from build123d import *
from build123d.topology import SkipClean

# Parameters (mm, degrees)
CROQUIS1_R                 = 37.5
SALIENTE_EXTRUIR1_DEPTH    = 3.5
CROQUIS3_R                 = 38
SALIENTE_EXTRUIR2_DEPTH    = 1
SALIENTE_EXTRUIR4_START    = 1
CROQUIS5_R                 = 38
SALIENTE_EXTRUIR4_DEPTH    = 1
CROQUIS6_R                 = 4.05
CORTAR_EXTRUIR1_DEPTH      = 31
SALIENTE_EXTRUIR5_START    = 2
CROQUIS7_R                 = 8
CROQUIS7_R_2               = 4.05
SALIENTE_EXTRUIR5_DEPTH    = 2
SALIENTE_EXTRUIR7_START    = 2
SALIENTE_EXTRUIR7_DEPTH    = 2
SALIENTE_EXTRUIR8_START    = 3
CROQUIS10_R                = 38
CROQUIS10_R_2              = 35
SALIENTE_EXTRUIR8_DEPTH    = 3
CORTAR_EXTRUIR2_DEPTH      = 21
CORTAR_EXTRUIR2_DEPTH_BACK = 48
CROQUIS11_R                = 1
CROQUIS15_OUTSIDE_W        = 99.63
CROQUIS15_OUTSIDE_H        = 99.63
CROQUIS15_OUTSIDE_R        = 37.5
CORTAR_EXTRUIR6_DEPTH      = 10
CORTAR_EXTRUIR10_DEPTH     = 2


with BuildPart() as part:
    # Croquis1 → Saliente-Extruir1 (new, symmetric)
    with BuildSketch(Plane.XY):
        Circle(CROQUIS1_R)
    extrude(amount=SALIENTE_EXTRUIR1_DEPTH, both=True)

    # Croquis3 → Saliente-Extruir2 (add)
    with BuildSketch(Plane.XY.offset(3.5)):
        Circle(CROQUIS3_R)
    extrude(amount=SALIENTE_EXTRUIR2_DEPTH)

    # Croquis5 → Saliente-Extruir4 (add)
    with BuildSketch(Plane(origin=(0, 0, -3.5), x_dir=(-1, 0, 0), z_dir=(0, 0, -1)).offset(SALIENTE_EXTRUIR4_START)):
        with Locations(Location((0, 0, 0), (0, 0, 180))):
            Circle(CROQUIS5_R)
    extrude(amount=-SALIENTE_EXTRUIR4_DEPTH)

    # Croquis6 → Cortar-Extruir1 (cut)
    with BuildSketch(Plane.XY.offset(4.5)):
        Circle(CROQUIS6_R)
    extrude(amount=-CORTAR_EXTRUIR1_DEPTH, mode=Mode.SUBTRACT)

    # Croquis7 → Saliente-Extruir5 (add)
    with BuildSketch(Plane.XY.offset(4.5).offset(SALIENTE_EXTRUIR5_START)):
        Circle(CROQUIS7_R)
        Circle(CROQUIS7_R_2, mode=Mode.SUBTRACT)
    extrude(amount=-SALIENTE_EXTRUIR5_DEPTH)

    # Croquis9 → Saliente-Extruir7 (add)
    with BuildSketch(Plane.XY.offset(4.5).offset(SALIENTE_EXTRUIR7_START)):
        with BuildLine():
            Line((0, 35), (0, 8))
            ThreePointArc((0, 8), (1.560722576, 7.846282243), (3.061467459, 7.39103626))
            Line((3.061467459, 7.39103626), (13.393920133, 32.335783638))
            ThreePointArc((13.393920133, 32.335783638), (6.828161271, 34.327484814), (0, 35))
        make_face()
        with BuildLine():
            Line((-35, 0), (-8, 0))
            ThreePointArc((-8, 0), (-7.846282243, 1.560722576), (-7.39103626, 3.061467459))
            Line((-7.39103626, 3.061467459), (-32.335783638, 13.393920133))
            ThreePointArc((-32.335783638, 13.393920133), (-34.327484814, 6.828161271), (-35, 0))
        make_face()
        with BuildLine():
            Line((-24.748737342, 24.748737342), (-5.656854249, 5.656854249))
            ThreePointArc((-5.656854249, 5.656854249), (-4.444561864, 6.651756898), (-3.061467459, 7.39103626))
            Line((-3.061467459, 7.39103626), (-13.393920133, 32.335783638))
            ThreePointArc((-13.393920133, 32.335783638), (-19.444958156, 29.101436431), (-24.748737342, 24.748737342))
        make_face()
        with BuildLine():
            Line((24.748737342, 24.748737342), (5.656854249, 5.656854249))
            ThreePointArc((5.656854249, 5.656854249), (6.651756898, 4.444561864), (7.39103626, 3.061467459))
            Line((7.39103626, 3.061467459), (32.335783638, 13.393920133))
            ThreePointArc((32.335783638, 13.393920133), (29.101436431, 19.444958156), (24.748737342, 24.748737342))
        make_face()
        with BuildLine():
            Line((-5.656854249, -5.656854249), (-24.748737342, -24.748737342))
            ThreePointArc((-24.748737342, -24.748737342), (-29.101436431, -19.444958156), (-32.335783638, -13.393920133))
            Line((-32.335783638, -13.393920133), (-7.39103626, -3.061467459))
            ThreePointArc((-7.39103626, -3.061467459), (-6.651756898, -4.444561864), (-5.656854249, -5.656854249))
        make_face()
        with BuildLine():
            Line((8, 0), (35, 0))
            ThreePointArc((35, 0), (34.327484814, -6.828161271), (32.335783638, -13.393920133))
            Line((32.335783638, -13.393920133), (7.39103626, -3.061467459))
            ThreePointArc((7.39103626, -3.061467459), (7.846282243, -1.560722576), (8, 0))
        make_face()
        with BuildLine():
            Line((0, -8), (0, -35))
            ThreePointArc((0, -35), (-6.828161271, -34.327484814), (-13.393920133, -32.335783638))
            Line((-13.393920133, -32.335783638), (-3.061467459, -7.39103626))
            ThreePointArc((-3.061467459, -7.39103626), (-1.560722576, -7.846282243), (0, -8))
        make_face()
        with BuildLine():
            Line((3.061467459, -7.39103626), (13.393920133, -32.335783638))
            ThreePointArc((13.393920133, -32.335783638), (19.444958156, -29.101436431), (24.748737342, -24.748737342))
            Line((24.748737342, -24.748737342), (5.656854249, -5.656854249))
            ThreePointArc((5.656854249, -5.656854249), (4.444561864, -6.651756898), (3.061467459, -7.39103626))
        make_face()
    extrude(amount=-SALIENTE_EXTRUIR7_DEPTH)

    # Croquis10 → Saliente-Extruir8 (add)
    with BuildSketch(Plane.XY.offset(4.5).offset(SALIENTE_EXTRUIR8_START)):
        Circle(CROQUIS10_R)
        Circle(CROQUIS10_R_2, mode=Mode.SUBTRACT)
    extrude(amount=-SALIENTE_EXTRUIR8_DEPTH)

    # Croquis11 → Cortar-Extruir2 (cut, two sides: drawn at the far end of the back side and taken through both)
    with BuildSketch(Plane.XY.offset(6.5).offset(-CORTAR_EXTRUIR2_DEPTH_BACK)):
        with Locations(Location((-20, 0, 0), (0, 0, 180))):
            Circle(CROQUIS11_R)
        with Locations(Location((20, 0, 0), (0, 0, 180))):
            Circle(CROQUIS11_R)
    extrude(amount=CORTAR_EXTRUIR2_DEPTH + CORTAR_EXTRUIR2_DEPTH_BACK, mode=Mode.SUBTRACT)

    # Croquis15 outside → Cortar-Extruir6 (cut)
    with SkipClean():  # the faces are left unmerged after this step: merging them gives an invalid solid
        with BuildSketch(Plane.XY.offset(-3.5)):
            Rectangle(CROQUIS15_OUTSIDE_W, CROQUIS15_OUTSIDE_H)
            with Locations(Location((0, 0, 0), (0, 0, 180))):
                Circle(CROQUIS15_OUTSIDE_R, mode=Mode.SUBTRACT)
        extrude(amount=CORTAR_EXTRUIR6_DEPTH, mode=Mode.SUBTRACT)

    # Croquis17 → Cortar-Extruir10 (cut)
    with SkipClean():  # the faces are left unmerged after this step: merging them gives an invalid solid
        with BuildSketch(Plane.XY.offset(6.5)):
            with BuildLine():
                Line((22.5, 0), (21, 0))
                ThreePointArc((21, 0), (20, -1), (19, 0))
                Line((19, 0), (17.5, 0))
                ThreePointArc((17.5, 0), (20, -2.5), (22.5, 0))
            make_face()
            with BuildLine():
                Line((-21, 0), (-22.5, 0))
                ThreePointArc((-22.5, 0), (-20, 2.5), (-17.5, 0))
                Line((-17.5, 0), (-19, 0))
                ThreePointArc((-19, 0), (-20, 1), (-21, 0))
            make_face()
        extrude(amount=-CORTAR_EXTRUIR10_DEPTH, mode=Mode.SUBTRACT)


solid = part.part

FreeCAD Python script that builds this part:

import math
import FreeCAD as App
import Part
import Sketcher
from FreeCAD import Vector
Q = App.Units.Quantity


def add_polygon(sketch, points):
    """Adds a closed chain of lines whose ends are joined by coincident constraints."""
    first, n = sketch.GeometryCount, len(points)
    for a, b in zip(points, points[1:] + points[:1]):
        sketch.addGeometry(Part.LineSegment(App.Vector(*a, 0), App.Vector(*b, 0)), False)
    for i in range(n):
        sketch.addConstraint(Sketcher.Constraint("Coincident", first + i, 2, first + (i + 1) % n, 1))

doc = App.newDocument("Part")
body = doc.addObject("PartDesign::Body", "Body")

# Sketch on XY plane
sketch1 = doc.addObject("Sketcher::SketchObject", "Sketch")
body.addObject(sketch1)
sketch1.AttachmentSupport = (doc.XY_Plane, [""])
sketch1.MapMode = "FlatFace"
sketch1.addGeometry(Part.Circle(Vector(0, 0, 0), Vector(0, 0, 1), 37.5), False)
sketch1.addConstraint([
    Sketcher.Constraint("Coincident", 0, 3, -1, 1),
    Sketcher.Constraint("Diameter", 0, 75.0),
])
pad1 = doc.addObject("PartDesign::Pad", "Pad")
body.addObject(pad1)
pad1.Profile = sketch1
pad1.Length = 7
pad1.Midplane = True

# Sketch on XY plane
sketch2 = doc.addObject("Sketcher::SketchObject", "Sketch001")
body.addObject(sketch2)
sketch2.AttachmentSupport = (doc.XY_Plane, [""])
sketch2.MapMode = "FlatFace"
sketch2.AttachmentOffset = App.Placement(Vector(0, 0, 3.5), App.Rotation())
sketch2.addGeometry(Part.Circle(Vector(0, 0, 0), Vector(0, 0, 1), 38), False)
sketch2.addConstraint([
    Sketcher.Constraint("Coincident", 0, 3, -1, 1),
    Sketcher.Constraint("Diameter", 0, 76.0),
])
pad2 = doc.addObject("PartDesign::Pad", "Pad001")
body.addObject(pad2)
pad2.Profile = sketch2
pad2.Length = 1

# Sketch on XY plane
sketch3 = doc.addObject("Sketcher::SketchObject", "Sketch002")
body.addObject(sketch3)
sketch3.AttachmentSupport = (doc.XY_Plane, [""])
sketch3.MapMode = "FlatFace"
sketch3.AttachmentOffset = App.Placement(Vector(0, 0, -4.5), App.Rotation())
sketch3.addGeometry(Part.Circle(Vector(0, 0, 0), Vector(0, 0, 1), 38), False)
sketch3.addConstraint([
    Sketcher.Constraint("Coincident", 0, 3, -1, 1),
    Sketcher.Constraint("Diameter", 0, 76.0),
])
pad3 = doc.addObject("PartDesign::Pad", "Pad002")
body.addObject(pad3)
pad3.Profile = sketch3
pad3.Length = 1

# Sketch on XY plane
sketch4 = doc.addObject("Sketcher::SketchObject", "Sketch003")
body.addObject(sketch4)
sketch4.AttachmentSupport = (doc.XY_Plane, [""])
sketch4.MapMode = "FlatFace"
sketch4.AttachmentOffset = App.Placement(Vector(0, 0, 4.5), App.Rotation())
sketch4.addGeometry(Part.Circle(Vector(0, 0, 0), Vector(0, 0, 1), 4.05), False)
sketch4.addConstraint([
    Sketcher.Constraint("Coincident", 0, 3, -1, 1),
    Sketcher.Constraint("Diameter", 0, 8.1),
])
pocket1 = doc.addObject("PartDesign::Pocket", "Pocket")
body.addObject(pocket1)
pocket1.Profile = sketch4
pocket1.Length = 31

# Sketch on XY plane
sketch5 = doc.addObject("Sketcher::SketchObject", "Sketch004")
body.addObject(sketch5)
sketch5.AttachmentSupport = (doc.XY_Plane, [""])
sketch5.MapMode = "FlatFace"
sketch5.AttachmentOffset = App.Placement(Vector(0, 0, 6.5), App.Rotation())
sketch5.addGeometry([
    Part.Circle(Vector(0, 0, 0), Vector(0, 0, 1), 8),
    Part.Circle(Vector(0, 0, 0), Vector(0, 0, 1), 4.05),
], False)
sketch5.addConstraint([
    Sketcher.Constraint("Coincident", 0, 3, -1, 1),
    Sketcher.Constraint("Coincident", 1, 3, -1, 1),
    Sketcher.Constraint("Diameter", 0, 16.0),
    Sketcher.Constraint("Diameter", 1, 8.1),
])
pad4 = doc.addObject("PartDesign::Pad", "Pad003")
body.addObject(pad4)
pad4.Profile = sketch5
pad4.Length = 2
pad4.Reversed = True

# Sketch on XY plane
sketch6 = doc.addObject("Sketcher::SketchObject", "Sketch005")
body.addObject(sketch6)
sketch6.AttachmentSupport = (doc.XY_Plane, [""])
sketch6.MapMode = "FlatFace"
sketch6.AttachmentOffset = App.Placement(Vector(0, 0, 6.5), App.Rotation())
sketch6.addGeometry([
    Part.LineSegment(Vector(0, 35, 0), Vector(0, 8, 0)),  # 0
    Part.ArcOfCircle(Part.Circle(Vector(0, 0, 0), Vector(0, 0, 1), 8), math.radians(67.5), math.radians(90)),  # 1
    Part.LineSegment(Vector(3.061467, 7.391036, 0), Vector(13.39392, 32.335784, 0)),  # 2
    Part.ArcOfCircle(Part.Circle(Vector(0, 0, 0), Vector(0, 0, 1), 35), math.radians(67.5), math.radians(90)),  # 3
    Part.LineSegment(Vector(-35, 0, 0), Vector(-8, 0, 0)),  # 4
    Part.ArcOfCircle(Part.Circle(Vector(0, 0, 0), Vector(0, 0, 1), 8), math.radians(157.5), math.radians(180)),  # 5
    Part.LineSegment(Vector(-7.391036, 3.061467, 0), Vector(-32.335784, 13.39392, 0)),  # 6
    Part.ArcOfCircle(Part.Circle(Vector(0, 0, 0), Vector(0, 0, 1), 35), math.radians(157.5), math.radians(180)),  # 7
    Part.LineSegment(Vector(-24.748737, 24.748737, 0), Vector(-5.656854, 5.656854, 0)),  # 8
    Part.ArcOfCircle(Part.Circle(Vector(0, 0, 0), Vector(0, 0, 1), 8), math.radians(112.5), math.radians(135)),  # 9
    Part.LineSegment(Vector(-3.061467, 7.391036, 0), Vector(-13.39392, 32.335784, 0)),  # 10
    Part.ArcOfCircle(Part.Circle(Vector(0, 0, 0), Vector(0, 0, 1), 35), math.radians(112.5), math.radians(135)),  # 11
    Part.LineSegment(Vector(24.748737, 24.748737, 0), Vector(5.656854, 5.656854, 0)),  # 12
    Part.ArcOfCircle(Part.Circle(Vector(0, 0, 0), Vector(0, 0, 1), 8), math.radians(22.5), math.radians(45)),  # 13
    Part.LineSegment(Vector(7.391036, 3.061467, 0), Vector(32.335784, 13.39392, 0)),  # 14
    Part.ArcOfCircle(Part.Circle(Vector(0, 0, 0), Vector(0, 0, 1), 35), math.radians(22.5), math.radians(45)),  # 15
    Part.LineSegment(Vector(-24.748737, -24.748737, 0), Vector(-5.656854, -5.656854, 0)),  # 16
    Part.ArcOfCircle(Part.Circle(Vector(0, 0, 0), Vector(0, 0, 1), 8), math.radians(-157.5), math.radians(-135)),  # 17
    Part.LineSegment(Vector(-7.391036, -3.061467, 0), Vector(-32.335784, -13.39392, 0)),  # 18
    Part.ArcOfCircle(Part.Circle(Vector(0, 0, 0), Vector(0, 0, 1), 35), math.radians(-157.5), math.radians(-135)),  # 19
    Part.LineSegment(Vector(35, 0, 0), Vector(8, 0, 0)),  # 20
    Part.ArcOfCircle(Part.Circle(Vector(0, 0, 0), Vector(0, 0, 1), 8), math.radians(-22.5), math.radians(0)),  # 21
    Part.LineSegment(Vector(7.391036, -3.061467, 0), Vector(32.335784, -13.39392, 0)),  # 22
    Part.ArcOfCircle(Part.Circle(Vector(0, 0, 0), Vector(0, 0, 1), 35), math.radians(-22.5), math.radians(0)),  # 23
    Part.LineSegment(Vector(0, -35, 0), Vector(0, -8, 0)),  # 24
    Part.ArcOfCircle(Part.Circle(Vector(0, 0, 0), Vector(0, 0, 1), 8), math.radians(-112.5), math.radians(-90)),  # 25
    Part.LineSegment(Vector(-3.061467, -7.391036, 0), Vector(-13.39392, -32.335784, 0)),  # 26
    Part.ArcOfCircle(Part.Circle(Vector(0, 0, 0), Vector(0, 0, 1), 35), math.radians(-112.5), math.radians(-90)),  # 27
    Part.LineSegment(Vector(3.061467, -7.391036, 0), Vector(13.39392, -32.335784, 0)),  # 28
    Part.ArcOfCircle(Part.Circle(Vector(0, 0, 0), Vector(0, 0, 1), 35), math.radians(-67.5), math.radians(-45)),  # 29
    Part.LineSegment(Vector(24.748737, -24.748737, 0), Vector(5.656854, -5.656854, 0)),  # 30
    Part.ArcOfCircle(Part.Circle(Vector(0, 0, 0), Vector(0, 0, 1), 8), math.radians(-67.5), math.radians(-45)),  # 31
], False)
sketch6.addConstraint([
    Sketcher.Constraint("Coincident", 0, 2, 1, 2),
    Sketcher.Constraint("Coincident", 1, 1, 2, 1),
    Sketcher.Constraint("Coincident", 2, 2, 3, 1),
    Sketcher.Constraint("Coincident", 3, 2, 0, 1),
    Sketcher.Constraint("Coincident", 4, 2, 5, 2),
    Sketcher.Constraint("Coincident", 5, 1, 6, 1),
    Sketcher.Constraint("Coincident", 6, 2, 7, 1),
    Sketcher.Constraint("Coincident", 7, 2, 4, 1),
    Sketcher.Constraint("Coincident", 8, 2, 9, 2),
    Sketcher.Constraint("Coincident", 9, 1, 10, 1),
    Sketcher.Constraint("Coincident", 10, 2, 11, 1),
    Sketcher.Constraint("Coincident", 11, 2, 8, 1),
    Sketcher.Constraint("Coincident", 12, 2, 13, 2),
    Sketcher.Constraint("Coincident", 13, 1, 14, 1),
    Sketcher.Constraint("Coincident", 14, 2, 15, 1),
    Sketcher.Constraint("Coincident", 15, 2, 12, 1),
    Sketcher.Constraint("Coincident", 16, 2, 17, 2),
    Sketcher.Constraint("Coincident", 17, 1, 18, 1),
    Sketcher.Constraint("Coincident", 18, 2, 19, 1),
    Sketcher.Constraint("Coincident", 19, 2, 16, 1),
    Sketcher.Constraint("Coincident", 20, 2, 21, 2),
    Sketcher.Constraint("Coincident", 21, 1, 22, 1),
    Sketcher.Constraint("Coincident", 22, 2, 23, 1),
    Sketcher.Constraint("Coincident", 23, 2, 20, 1),
    Sketcher.Constraint("Coincident", 24, 2, 25, 2),
    Sketcher.Constraint("Coincident", 25, 1, 26, 1),
    Sketcher.Constraint("Coincident", 26, 2, 27, 1),
    Sketcher.Constraint("Coincident", 27, 2, 24, 1),
    Sketcher.Constraint("Coincident", 28, 2, 29, 1),
    Sketcher.Constraint("Coincident", 29, 2, 30, 1),
    Sketcher.Constraint("Coincident", 30, 2, 31, 2),
    Sketcher.Constraint("Coincident", 31, 1, 28, 1),
    Sketcher.Constraint("Vertical", 0),
    Sketcher.Constraint("Horizontal", 4),
    Sketcher.Constraint("Horizontal", 20),
    Sketcher.Constraint("Vertical", 24),
    Sketcher.Constraint("Coincident", 1, 3, -1, 1),
    Sketcher.Constraint("Coincident", 3, 3, -1, 1),
    Sketcher.Constraint("Coincident", 5, 3, -1, 1),
    Sketcher.Constraint("Coincident", 7, 3, -1, 1),
    Sketcher.Constraint("Coincident", 9, 3, -1, 1),
    Sketcher.Constraint("Coincident", 11, 3, -1, 1),
    Sketcher.Constraint("Coincident", 13, 3, -1, 1),
    Sketcher.Constraint("Coincident", 15, 3, -1, 1),
    Sketcher.Constraint("Coincident", 17, 3, -1, 1),
    Sketcher.Constraint("Coincident", 19, 3, -1, 1),
    Sketcher.Constraint("Coincident", 21, 3, -1, 1),
    Sketcher.Constraint("Coincident", 23, 3, -1, 1),
    Sketcher.Constraint("Coincident", 25, 3, -1, 1),
    Sketcher.Constraint("Coincident", 27, 3, -1, 1),
    Sketcher.Constraint("Coincident", 29, 3, -1, 1),
    Sketcher.Constraint("Coincident", 31, 3, -1, 1),
    Sketcher.Constraint("Equal", 1, 5),
    Sketcher.Constraint("Equal", 3, 7),
    Sketcher.Constraint("Equal", 5, 9),
    Sketcher.Constraint("Equal", 7, 11),
    Sketcher.Constraint("Equal", 9, 13),
    Sketcher.Constraint("Equal", 11, 15),
    Sketcher.Constraint("Equal", 13, 17),
    Sketcher.Constraint("Equal", 15, 19),
    Sketcher.Constraint("Equal", 17, 21),
    Sketcher.Constraint("Equal", 19, 23),
    Sketcher.Constraint("Equal", 21, 25),
    Sketcher.Constraint("Equal", 23, 27),
    Sketcher.Constraint("Equal", 27, 29),
    Sketcher.Constraint("Equal", 25, 31),
    Sketcher.Constraint("PointOnObject", 0, 2, -2),
    Sketcher.Constraint("PointOnObject", 4, 2, -1),
    Sketcher.Constraint("PointOnObject", 20, 2, -1),
    Sketcher.Constraint("PointOnObject", 24, 2, -2),
    Sketcher.Constraint("Perpendicular", 2, 6),
    Sketcher.Constraint("Perpendicular", 8, 12),
    Sketcher.Constraint("Perpendicular", 10, 14),
    Sketcher.Constraint("Parallel", 12, 16),
    Sketcher.Constraint("Parallel", 14, 18),
    Sketcher.Constraint("Parallel", 6, 22),
    Sketcher.Constraint("Perpendicular", 22, 26),
    Sketcher.Constraint("Perpendicular", 18, 28),
    Sketcher.Constraint("Perpendicular", 16, 30),
    Sketcher.Constraint("Horizontal", 1, 1, 9, 1),
    Sketcher.Constraint("Horizontal", 2, 2, 10, 2),
    Sketcher.Constraint("Horizontal", 8, 2, 12, 2),
    Sketcher.Constraint("Horizontal", 5, 1, 13, 1),
    Sketcher.Constraint("Horizontal", 11, 2, 15, 2),
    Sketcher.Constraint("Horizontal", 17, 1, 21, 1),
    Sketcher.Constraint("Horizontal", 26, 2, 28, 2),
    Sketcher.Constraint("Horizontal", 19, 2, 29, 2),
    Sketcher.Constraint("Vertical", 8, 2, 16, 2),
    Sketcher.Constraint("Vertical", 5, 1, 17, 1),
    Sketcher.Constraint("Vertical", 9, 1, 25, 1),
    Sketcher.Constraint("Radius", 1, 8.0),
    Sketcher.Constraint("Radius", 3, 35.0),
    Sketcher.Constraint("Angle", 2, Q("67.5 deg")),
    Sketcher.Constraint("DistanceY", 1, 1, 15, 2, 17.357701),
    Sketcher.Constraint("DistanceX", 19, 2, 17, 1, 17.357701),
    Sketcher.Constraint("DistanceX", -1, 1, 2, 2, 13.39392),
])
pad5 = doc.addObject("PartDesign::Pad", "Pad004")
body.addObject(pad5)
pad5.Profile = sketch6
pad5.Length = 2
pad5.Reversed = True

# Sketch on XY plane
sketch7 = doc.addObject("Sketcher::SketchObject", "Sketch006")
body.addObject(sketch7)
sketch7.AttachmentSupport = (doc.XY_Plane, [""])
sketch7.MapMode = "FlatFace"
sketch7.AttachmentOffset = App.Placement(Vector(0, 0, 7.5), App.Rotation())
sketch7.addGeometry([
    Part.Circle(Vector(0, 0, 0), Vector(0, 0, 1), 38),
    Part.Circle(Vector(0, 0, 0), Vector(0, 0, 1), 35),
], False)
sketch7.addConstraint([
    Sketcher.Constraint("Coincident", 0, 3, -1, 1),
    Sketcher.Constraint("Coincident", 1, 3, -1, 1),
    Sketcher.Constraint("Diameter", 0, 76.0),
    Sketcher.Constraint("Diameter", 1, 70.0),
])
pad6 = doc.addObject("PartDesign::Pad", "Pad005")
body.addObject(pad6)
pad6.Profile = sketch7
pad6.Length = 3
pad6.Reversed = True

# Sketch on XY plane
sketch8 = doc.addObject("Sketcher::SketchObject", "Sketch007")
body.addObject(sketch8)
sketch8.AttachmentSupport = (doc.XY_Plane, [""])
sketch8.MapMode = "FlatFace"
sketch8.AttachmentOffset = App.Placement(Vector(0, 0, 6.5), App.Rotation())
sketch8.addGeometry([
    Part.Circle(Vector(-20, 0, 0), Vector(0, 0, 1), 1),
    Part.Circle(Vector(20, 0, 0), Vector(0, 0, 1), 1),
], False)
sketch8.addConstraint([
    Sketcher.Constraint("Equal", 0, 1),
    Sketcher.Constraint("Symmetric", 0, 3, 1, 3, -1, 1),
    Sketcher.Constraint("PointOnObject", 0, 3, -1),
    Sketcher.Constraint("Diameter", 0, 2.0),
    Sketcher.Constraint("DistanceX", 0, 3, -1, 1, 20.0),
])
pocket2 = doc.addObject("PartDesign::Pocket", "Pocket001")
body.addObject(pocket2)
pocket2.Profile = sketch8
pocket2.Type = "ThroughAll"
pocket2.Midplane = True

# Sketch on XY plane
sketch9 = doc.addObject("Sketcher::SketchObject", "Sketch008")
body.addObject(sketch9)
sketch9.AttachmentSupport = (doc.XY_Plane, [""])
sketch9.MapMode = "FlatFace"
sketch9.AttachmentOffset = App.Placement(Vector(0, 0, -3.5), App.Rotation())
add_polygon(sketch9, [(-49.815, 49.815), (-49.815, -49.815), (49.815, -49.815), (49.815, 49.815)])  # lines 0-3
sketch9.addGeometry(Part.Circle(Vector(0, 0, 0), Vector(0, 0, 1), 37.5), False)  # 4
sketch9.addConstraint([
    Sketcher.Constraint("Vertical", 0),
    Sketcher.Constraint("Horizontal", 1),
    Sketcher.Constraint("Vertical", 2),
    Sketcher.Constraint("Horizontal", 3),
    Sketcher.Constraint("Coincident", 4, 3, -1, 1),
    Sketcher.Constraint("Symmetric", 0, 2, 2, 2, -1, 1),
    Sketcher.Constraint("Equal", 3, 0),
    Sketcher.Constraint("Diameter", 4, 75.0),
    Sketcher.Constraint("DistanceX", 1, 1, 1, 2, 99.63),
])
pocket3 = doc.addObject("PartDesign::Pocket", "Pocket002")
body.addObject(pocket3)
pocket3.Profile = sketch9
pocket3.Length = 10
pocket3.Reversed = True

# Sketch on XY plane
sketch10 = doc.addObject("Sketcher::SketchObject", "Sketch009")
body.addObject(sketch10)
sketch10.AttachmentSupport = (doc.XY_Plane, [""])
sketch10.MapMode = "FlatFace"
sketch10.AttachmentOffset = App.Placement(Vector(0, 0, 6.5), App.Rotation())
sketch10.addGeometry([
    Part.LineSegment(Vector(22.5, 0, 0), Vector(21, 0, 0)),  # 0
    Part.ArcOfCircle(Part.Circle(Vector(20, 0, 0), Vector(0, 0, 1), 1), math.radians(180), math.radians(360)),  # 1
    Part.LineSegment(Vector(19, 0, 0), Vector(17.5, 0, 0)),  # 2
    Part.ArcOfCircle(Part.Circle(Vector(20, 0, 0), Vector(0, 0, 1), 2.5), math.radians(180), math.radians(360)),  # 3
    Part.LineSegment(Vector(-22.5, 0, 0), Vector(-21, 0, 0)),  # 4
    Part.ArcOfCircle(Part.Circle(Vector(-20, 0, 0), Vector(0, 0, 1), 1), math.radians(0), math.radians(180)),  # 5
    Part.LineSegment(Vector(-19, 0, 0), Vector(-17.5, 0, 0)),  # 6
    Part.ArcOfCircle(Part.Circle(Vector(-20, 0, 0), Vector(0, 0, 1), 2.5), math.radians(0), math.radians(180)),  # 7
], False)
sketch10.addConstraint([
    Sketcher.Constraint("Coincident", 0, 2, 1, 2),
    Sketcher.Constraint("Coincident", 1, 1, 2, 1),
    Sketcher.Constraint("Coincident", 2, 2, 3, 1),
    Sketcher.Constraint("Coincident", 3, 2, 0, 1),
    Sketcher.Constraint("Coincident", 4, 2, 5, 2),
    Sketcher.Constraint("Coincident", 5, 1, 6, 1),
    Sketcher.Constraint("Coincident", 6, 2, 7, 1),
    Sketcher.Constraint("Coincident", 7, 2, 4, 1),
    Sketcher.Constraint("Horizontal", 0),
    Sketcher.Constraint("Horizontal", 2),
    Sketcher.Constraint("Horizontal", 4),
    Sketcher.Constraint("Horizontal", 6),
    Sketcher.Constraint("Coincident", 3, 3, 1, 3),
    Sketcher.Constraint("Coincident", 7, 3, 5, 3),
    Sketcher.Constraint("Equal", 1, 5),
    Sketcher.Constraint("Equal", 3, 7),
    Sketcher.Constraint("Symmetric", 1, 3, 5, 3, -1, 1),
    Sketcher.Constraint("PointOnObject", 1, 3, -1),
    Sketcher.Constraint("PointOnObject", 0, 2, -1),
    Sketcher.Constraint("PointOnObject", 1, 1, -1),
    Sketcher.Constraint("PointOnObject", 4, 2, -1),
    Sketcher.Constraint("PointOnObject", 5, 1, -1),
    Sketcher.Constraint("Radius", 1, 1.0),
    Sketcher.Constraint("Radius", 3, 2.5),
    Sketcher.Constraint("DistanceX", -1, 1, 1, 3, 20.0),
])
pocket4 = doc.addObject("PartDesign::Pocket", "Pocket003")
body.addObject(pocket4)
pocket4.Profile = sketch10
pocket4.Length = 2

doc.recompute()
